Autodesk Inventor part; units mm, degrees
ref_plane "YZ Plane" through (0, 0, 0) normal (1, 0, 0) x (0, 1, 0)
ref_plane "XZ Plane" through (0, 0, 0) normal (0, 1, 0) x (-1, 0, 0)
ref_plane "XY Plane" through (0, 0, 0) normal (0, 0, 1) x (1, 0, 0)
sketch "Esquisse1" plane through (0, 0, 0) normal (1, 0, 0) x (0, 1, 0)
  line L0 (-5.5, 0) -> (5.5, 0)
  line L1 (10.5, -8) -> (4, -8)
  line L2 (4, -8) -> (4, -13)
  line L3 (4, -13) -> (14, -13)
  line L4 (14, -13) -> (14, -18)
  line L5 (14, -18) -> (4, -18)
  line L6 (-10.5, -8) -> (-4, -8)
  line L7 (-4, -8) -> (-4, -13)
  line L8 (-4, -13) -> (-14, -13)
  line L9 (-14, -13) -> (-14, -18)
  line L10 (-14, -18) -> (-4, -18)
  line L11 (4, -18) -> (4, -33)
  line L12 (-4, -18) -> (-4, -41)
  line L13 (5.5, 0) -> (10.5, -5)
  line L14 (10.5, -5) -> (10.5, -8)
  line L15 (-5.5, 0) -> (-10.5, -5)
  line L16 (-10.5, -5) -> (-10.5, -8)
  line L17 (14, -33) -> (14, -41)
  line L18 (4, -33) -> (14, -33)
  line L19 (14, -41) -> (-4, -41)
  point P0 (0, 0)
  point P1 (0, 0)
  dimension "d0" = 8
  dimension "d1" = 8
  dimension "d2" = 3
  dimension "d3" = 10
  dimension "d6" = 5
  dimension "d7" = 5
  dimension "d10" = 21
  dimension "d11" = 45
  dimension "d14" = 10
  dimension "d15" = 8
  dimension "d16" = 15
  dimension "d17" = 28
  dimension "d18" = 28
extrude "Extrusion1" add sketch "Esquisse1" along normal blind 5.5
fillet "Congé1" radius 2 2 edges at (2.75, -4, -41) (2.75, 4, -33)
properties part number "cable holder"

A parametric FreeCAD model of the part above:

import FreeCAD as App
import Part
import Sketcher


def edges_at(feature, points):
    """Names of the edges that pass closest to the given points."""
    edges = feature.Shape.Edges
    near = lambda p: min(range(len(edges)), key=lambda i: edges[i].distToShape(Part.Vertex(*p))[0])
    return sorted({f"Edge{near(p) + 1}" for p in points})


def add_polygon(sketch, points):
    """Adds a closed chain of lines whose ends are joined by coincident constraints."""
    first, n = sketch.GeometryCount, len(points)
    for a, b in zip(points, points[1:] + points[:1]):
        sketch.addGeometry(Part.LineSegment(App.Vector(*a, 0), App.Vector(*b, 0)), False)
    for i in range(n):
        sketch.addConstraint(Sketcher.Constraint("Coincident", first + i, 2, first + (i + 1) % n, 1))

doc = App.newDocument("Part")
body = doc.addObject("PartDesign::Body", "Body")

# Sketch on YZ plane
sketch1 = body.newObject("Sketcher::SketchObject", "Sketch")
sketch1.AttachmentSupport = (doc.getObject("YZ_Plane"), [""])
sketch1.MapMode = "FlatFace"
add_polygon(sketch1, [(5.5, 0), (-5.5, 0), (-10.5, -5), (-10.5, -8), (-4, -8), (-4, -13), (-14, -13), (-14, -18), (-4, -18), (-4, -41), (14, -41), (14, -33), (4, -33), (4, -18), (14, -18), (14, -13), (4, -13), (4, -8), (10.5, -8), (10.5, -5)])  # lines 0-19
sketch1.addConstraint(Sketcher.Constraint("Horizontal", 0))
sketch1.addConstraint(Sketcher.Constraint("Vertical", 2))
sketch1.addConstraint(Sketcher.Constraint("Horizontal", 3))
sketch1.addConstraint(Sketcher.Constraint("Vertical", 4))
sketch1.addConstraint(Sketcher.Constraint("Horizontal", 5))
sketch1.addConstraint(Sketcher.Constraint("Vertical", 6))
sketch1.addConstraint(Sketcher.Constraint("Horizontal", 7))
sketch1.addConstraint(Sketcher.Constraint("Vertical", 8))
sketch1.addConstraint(Sketcher.Constraint("Horizontal", 9))
sketch1.addConstraint(Sketcher.Constraint("Vertical", 10))
sketch1.addConstraint(Sketcher.Constraint("Horizontal", 11))
sketch1.addConstraint(Sketcher.Constraint("Vertical", 12))
sketch1.addConstraint(Sketcher.Constraint("Horizontal", 13))
sketch1.addConstraint(Sketcher.Constraint("Vertical", 14))
sketch1.addConstraint(Sketcher.Constraint("Horizontal", 15))
sketch1.addConstraint(Sketcher.Constraint("Vertical", 16))
sketch1.addConstraint(Sketcher.Constraint("Horizontal", 17))
sketch1.addConstraint(Sketcher.Constraint("Vertical", 18))
sketch1.addConstraint(Sketcher.Constraint("Symmetric", 0, 2, 19, 2, -1, 1))
sketch1.addConstraint(Sketcher.Constraint("Symmetric", 7, 2, 12, 2, -2))
sketch1.addConstraint(Sketcher.Constraint("Symmetric", 5, 2, 14, 2, -2))
sketch1.addConstraint(Sketcher.Constraint("Symmetric", 3, 2, 16, 2, -2))
sketch1.addConstraint(Sketcher.Constraint("Symmetric", 1, 2, 18, 2, -2))
sketch1.addConstraint(Sketcher.Constraint("Perpendicular", 1, 19))
sketch1.addConstraint(Sketcher.Constraint("Vertical", 4, 2, 7, 2))
sketch1.addConstraint(Sketcher.Constraint("Vertical", 10, 2, 13, 2))
sketch1.addConstraint(Sketcher.Constraint("Equal", 4, 6))
sketch1.addConstraint(Sketcher.Constraint("DistanceX", 5, 2, 5, 1, 10.0))
sketch1.addConstraint(Sketcher.Constraint("DistanceY", 2, 2, 2, 1, 3.0))
sketch1.addConstraint(Sketcher.Constraint("DistanceY", 4, 2, 4, 1, 5.0))
sketch1.addConstraint(Sketcher.Constraint("DistanceY", 10, 1, 10, 2, 8.0))
sketch1.addConstraint(Sketcher.Constraint("DistanceY", 12, 1, 12, 2, 15.0))
sketch1.addConstraint(Sketcher.Constraint("DistanceY", 1, 2, -1, 1, 5.0))
sketch1.addConstraint(Sketcher.Constraint("DistanceX", 6, 2, 9, 2, 28.0))
sketch1.addConstraint(Sketcher.Constraint("DistanceX", 0, 2, 0, 1, 11.0))
pad1 = body.newObject("PartDesign::Pad", "Pad")
pad1.Profile = sketch1
pad1.Length = 5.5
doc.recompute()

fillet = body.newObject("PartDesign::Fillet", "Fillet")
fillet.Base = (pad1, edges_at(pad1, [(2.75, -4, -41), (2.75, 4, -33)]))
fillet.Radius = 2

doc.recompute()
